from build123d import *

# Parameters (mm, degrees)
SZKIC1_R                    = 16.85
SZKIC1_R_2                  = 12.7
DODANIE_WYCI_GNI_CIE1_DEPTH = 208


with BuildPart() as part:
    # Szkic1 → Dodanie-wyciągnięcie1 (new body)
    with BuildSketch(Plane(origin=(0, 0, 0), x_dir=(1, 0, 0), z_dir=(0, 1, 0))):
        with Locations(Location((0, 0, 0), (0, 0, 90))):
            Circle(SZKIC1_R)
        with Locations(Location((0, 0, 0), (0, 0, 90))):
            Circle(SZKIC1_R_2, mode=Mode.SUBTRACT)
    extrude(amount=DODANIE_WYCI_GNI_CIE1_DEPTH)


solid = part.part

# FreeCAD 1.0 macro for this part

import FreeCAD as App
import Part
import Sketcher
Q = App.Units.Quantity

doc = App.newDocument("Part")
body = doc.addObject("PartDesign::Body", "Body")

# Sketch on XZ plane
sketch1 = body.newObject("Sketcher::SketchObject", "Sketch")
sketch1.AttachmentSupport = (doc.getObject("XZ_Plane"), [""])
sketch1.MapMode = "FlatFace"
sketch1.addGeometry(Part.Circle(App.Vector(0, 0, 0), App.Vector(0, 0, 1), 17), False)
sketch1.addGeometry(Part.Circle(App.Vector(0, 0, 0), App.Vector(0, 0, 1), 13), False)
sketch1.addConstraint(Sketcher.Constraint("Coincident", 0, 3, -1, 1))
sketch1.addConstraint(Sketcher.Constraint("Coincident", 1, 3, -1, 1))
sketch1.addConstraint(Sketcher.Constraint("Diameter", 0, Q("33.7 mm")))
sketch1.addConstraint(Sketcher.Constraint("Diameter", 1, Q("25.4 mm")))
pad1 = body.newObject("PartDesign::Pad", "Pad")
pad1.Profile = sketch1
pad1.Length = 208
pad1.Reversed = True

doc.recompute()
